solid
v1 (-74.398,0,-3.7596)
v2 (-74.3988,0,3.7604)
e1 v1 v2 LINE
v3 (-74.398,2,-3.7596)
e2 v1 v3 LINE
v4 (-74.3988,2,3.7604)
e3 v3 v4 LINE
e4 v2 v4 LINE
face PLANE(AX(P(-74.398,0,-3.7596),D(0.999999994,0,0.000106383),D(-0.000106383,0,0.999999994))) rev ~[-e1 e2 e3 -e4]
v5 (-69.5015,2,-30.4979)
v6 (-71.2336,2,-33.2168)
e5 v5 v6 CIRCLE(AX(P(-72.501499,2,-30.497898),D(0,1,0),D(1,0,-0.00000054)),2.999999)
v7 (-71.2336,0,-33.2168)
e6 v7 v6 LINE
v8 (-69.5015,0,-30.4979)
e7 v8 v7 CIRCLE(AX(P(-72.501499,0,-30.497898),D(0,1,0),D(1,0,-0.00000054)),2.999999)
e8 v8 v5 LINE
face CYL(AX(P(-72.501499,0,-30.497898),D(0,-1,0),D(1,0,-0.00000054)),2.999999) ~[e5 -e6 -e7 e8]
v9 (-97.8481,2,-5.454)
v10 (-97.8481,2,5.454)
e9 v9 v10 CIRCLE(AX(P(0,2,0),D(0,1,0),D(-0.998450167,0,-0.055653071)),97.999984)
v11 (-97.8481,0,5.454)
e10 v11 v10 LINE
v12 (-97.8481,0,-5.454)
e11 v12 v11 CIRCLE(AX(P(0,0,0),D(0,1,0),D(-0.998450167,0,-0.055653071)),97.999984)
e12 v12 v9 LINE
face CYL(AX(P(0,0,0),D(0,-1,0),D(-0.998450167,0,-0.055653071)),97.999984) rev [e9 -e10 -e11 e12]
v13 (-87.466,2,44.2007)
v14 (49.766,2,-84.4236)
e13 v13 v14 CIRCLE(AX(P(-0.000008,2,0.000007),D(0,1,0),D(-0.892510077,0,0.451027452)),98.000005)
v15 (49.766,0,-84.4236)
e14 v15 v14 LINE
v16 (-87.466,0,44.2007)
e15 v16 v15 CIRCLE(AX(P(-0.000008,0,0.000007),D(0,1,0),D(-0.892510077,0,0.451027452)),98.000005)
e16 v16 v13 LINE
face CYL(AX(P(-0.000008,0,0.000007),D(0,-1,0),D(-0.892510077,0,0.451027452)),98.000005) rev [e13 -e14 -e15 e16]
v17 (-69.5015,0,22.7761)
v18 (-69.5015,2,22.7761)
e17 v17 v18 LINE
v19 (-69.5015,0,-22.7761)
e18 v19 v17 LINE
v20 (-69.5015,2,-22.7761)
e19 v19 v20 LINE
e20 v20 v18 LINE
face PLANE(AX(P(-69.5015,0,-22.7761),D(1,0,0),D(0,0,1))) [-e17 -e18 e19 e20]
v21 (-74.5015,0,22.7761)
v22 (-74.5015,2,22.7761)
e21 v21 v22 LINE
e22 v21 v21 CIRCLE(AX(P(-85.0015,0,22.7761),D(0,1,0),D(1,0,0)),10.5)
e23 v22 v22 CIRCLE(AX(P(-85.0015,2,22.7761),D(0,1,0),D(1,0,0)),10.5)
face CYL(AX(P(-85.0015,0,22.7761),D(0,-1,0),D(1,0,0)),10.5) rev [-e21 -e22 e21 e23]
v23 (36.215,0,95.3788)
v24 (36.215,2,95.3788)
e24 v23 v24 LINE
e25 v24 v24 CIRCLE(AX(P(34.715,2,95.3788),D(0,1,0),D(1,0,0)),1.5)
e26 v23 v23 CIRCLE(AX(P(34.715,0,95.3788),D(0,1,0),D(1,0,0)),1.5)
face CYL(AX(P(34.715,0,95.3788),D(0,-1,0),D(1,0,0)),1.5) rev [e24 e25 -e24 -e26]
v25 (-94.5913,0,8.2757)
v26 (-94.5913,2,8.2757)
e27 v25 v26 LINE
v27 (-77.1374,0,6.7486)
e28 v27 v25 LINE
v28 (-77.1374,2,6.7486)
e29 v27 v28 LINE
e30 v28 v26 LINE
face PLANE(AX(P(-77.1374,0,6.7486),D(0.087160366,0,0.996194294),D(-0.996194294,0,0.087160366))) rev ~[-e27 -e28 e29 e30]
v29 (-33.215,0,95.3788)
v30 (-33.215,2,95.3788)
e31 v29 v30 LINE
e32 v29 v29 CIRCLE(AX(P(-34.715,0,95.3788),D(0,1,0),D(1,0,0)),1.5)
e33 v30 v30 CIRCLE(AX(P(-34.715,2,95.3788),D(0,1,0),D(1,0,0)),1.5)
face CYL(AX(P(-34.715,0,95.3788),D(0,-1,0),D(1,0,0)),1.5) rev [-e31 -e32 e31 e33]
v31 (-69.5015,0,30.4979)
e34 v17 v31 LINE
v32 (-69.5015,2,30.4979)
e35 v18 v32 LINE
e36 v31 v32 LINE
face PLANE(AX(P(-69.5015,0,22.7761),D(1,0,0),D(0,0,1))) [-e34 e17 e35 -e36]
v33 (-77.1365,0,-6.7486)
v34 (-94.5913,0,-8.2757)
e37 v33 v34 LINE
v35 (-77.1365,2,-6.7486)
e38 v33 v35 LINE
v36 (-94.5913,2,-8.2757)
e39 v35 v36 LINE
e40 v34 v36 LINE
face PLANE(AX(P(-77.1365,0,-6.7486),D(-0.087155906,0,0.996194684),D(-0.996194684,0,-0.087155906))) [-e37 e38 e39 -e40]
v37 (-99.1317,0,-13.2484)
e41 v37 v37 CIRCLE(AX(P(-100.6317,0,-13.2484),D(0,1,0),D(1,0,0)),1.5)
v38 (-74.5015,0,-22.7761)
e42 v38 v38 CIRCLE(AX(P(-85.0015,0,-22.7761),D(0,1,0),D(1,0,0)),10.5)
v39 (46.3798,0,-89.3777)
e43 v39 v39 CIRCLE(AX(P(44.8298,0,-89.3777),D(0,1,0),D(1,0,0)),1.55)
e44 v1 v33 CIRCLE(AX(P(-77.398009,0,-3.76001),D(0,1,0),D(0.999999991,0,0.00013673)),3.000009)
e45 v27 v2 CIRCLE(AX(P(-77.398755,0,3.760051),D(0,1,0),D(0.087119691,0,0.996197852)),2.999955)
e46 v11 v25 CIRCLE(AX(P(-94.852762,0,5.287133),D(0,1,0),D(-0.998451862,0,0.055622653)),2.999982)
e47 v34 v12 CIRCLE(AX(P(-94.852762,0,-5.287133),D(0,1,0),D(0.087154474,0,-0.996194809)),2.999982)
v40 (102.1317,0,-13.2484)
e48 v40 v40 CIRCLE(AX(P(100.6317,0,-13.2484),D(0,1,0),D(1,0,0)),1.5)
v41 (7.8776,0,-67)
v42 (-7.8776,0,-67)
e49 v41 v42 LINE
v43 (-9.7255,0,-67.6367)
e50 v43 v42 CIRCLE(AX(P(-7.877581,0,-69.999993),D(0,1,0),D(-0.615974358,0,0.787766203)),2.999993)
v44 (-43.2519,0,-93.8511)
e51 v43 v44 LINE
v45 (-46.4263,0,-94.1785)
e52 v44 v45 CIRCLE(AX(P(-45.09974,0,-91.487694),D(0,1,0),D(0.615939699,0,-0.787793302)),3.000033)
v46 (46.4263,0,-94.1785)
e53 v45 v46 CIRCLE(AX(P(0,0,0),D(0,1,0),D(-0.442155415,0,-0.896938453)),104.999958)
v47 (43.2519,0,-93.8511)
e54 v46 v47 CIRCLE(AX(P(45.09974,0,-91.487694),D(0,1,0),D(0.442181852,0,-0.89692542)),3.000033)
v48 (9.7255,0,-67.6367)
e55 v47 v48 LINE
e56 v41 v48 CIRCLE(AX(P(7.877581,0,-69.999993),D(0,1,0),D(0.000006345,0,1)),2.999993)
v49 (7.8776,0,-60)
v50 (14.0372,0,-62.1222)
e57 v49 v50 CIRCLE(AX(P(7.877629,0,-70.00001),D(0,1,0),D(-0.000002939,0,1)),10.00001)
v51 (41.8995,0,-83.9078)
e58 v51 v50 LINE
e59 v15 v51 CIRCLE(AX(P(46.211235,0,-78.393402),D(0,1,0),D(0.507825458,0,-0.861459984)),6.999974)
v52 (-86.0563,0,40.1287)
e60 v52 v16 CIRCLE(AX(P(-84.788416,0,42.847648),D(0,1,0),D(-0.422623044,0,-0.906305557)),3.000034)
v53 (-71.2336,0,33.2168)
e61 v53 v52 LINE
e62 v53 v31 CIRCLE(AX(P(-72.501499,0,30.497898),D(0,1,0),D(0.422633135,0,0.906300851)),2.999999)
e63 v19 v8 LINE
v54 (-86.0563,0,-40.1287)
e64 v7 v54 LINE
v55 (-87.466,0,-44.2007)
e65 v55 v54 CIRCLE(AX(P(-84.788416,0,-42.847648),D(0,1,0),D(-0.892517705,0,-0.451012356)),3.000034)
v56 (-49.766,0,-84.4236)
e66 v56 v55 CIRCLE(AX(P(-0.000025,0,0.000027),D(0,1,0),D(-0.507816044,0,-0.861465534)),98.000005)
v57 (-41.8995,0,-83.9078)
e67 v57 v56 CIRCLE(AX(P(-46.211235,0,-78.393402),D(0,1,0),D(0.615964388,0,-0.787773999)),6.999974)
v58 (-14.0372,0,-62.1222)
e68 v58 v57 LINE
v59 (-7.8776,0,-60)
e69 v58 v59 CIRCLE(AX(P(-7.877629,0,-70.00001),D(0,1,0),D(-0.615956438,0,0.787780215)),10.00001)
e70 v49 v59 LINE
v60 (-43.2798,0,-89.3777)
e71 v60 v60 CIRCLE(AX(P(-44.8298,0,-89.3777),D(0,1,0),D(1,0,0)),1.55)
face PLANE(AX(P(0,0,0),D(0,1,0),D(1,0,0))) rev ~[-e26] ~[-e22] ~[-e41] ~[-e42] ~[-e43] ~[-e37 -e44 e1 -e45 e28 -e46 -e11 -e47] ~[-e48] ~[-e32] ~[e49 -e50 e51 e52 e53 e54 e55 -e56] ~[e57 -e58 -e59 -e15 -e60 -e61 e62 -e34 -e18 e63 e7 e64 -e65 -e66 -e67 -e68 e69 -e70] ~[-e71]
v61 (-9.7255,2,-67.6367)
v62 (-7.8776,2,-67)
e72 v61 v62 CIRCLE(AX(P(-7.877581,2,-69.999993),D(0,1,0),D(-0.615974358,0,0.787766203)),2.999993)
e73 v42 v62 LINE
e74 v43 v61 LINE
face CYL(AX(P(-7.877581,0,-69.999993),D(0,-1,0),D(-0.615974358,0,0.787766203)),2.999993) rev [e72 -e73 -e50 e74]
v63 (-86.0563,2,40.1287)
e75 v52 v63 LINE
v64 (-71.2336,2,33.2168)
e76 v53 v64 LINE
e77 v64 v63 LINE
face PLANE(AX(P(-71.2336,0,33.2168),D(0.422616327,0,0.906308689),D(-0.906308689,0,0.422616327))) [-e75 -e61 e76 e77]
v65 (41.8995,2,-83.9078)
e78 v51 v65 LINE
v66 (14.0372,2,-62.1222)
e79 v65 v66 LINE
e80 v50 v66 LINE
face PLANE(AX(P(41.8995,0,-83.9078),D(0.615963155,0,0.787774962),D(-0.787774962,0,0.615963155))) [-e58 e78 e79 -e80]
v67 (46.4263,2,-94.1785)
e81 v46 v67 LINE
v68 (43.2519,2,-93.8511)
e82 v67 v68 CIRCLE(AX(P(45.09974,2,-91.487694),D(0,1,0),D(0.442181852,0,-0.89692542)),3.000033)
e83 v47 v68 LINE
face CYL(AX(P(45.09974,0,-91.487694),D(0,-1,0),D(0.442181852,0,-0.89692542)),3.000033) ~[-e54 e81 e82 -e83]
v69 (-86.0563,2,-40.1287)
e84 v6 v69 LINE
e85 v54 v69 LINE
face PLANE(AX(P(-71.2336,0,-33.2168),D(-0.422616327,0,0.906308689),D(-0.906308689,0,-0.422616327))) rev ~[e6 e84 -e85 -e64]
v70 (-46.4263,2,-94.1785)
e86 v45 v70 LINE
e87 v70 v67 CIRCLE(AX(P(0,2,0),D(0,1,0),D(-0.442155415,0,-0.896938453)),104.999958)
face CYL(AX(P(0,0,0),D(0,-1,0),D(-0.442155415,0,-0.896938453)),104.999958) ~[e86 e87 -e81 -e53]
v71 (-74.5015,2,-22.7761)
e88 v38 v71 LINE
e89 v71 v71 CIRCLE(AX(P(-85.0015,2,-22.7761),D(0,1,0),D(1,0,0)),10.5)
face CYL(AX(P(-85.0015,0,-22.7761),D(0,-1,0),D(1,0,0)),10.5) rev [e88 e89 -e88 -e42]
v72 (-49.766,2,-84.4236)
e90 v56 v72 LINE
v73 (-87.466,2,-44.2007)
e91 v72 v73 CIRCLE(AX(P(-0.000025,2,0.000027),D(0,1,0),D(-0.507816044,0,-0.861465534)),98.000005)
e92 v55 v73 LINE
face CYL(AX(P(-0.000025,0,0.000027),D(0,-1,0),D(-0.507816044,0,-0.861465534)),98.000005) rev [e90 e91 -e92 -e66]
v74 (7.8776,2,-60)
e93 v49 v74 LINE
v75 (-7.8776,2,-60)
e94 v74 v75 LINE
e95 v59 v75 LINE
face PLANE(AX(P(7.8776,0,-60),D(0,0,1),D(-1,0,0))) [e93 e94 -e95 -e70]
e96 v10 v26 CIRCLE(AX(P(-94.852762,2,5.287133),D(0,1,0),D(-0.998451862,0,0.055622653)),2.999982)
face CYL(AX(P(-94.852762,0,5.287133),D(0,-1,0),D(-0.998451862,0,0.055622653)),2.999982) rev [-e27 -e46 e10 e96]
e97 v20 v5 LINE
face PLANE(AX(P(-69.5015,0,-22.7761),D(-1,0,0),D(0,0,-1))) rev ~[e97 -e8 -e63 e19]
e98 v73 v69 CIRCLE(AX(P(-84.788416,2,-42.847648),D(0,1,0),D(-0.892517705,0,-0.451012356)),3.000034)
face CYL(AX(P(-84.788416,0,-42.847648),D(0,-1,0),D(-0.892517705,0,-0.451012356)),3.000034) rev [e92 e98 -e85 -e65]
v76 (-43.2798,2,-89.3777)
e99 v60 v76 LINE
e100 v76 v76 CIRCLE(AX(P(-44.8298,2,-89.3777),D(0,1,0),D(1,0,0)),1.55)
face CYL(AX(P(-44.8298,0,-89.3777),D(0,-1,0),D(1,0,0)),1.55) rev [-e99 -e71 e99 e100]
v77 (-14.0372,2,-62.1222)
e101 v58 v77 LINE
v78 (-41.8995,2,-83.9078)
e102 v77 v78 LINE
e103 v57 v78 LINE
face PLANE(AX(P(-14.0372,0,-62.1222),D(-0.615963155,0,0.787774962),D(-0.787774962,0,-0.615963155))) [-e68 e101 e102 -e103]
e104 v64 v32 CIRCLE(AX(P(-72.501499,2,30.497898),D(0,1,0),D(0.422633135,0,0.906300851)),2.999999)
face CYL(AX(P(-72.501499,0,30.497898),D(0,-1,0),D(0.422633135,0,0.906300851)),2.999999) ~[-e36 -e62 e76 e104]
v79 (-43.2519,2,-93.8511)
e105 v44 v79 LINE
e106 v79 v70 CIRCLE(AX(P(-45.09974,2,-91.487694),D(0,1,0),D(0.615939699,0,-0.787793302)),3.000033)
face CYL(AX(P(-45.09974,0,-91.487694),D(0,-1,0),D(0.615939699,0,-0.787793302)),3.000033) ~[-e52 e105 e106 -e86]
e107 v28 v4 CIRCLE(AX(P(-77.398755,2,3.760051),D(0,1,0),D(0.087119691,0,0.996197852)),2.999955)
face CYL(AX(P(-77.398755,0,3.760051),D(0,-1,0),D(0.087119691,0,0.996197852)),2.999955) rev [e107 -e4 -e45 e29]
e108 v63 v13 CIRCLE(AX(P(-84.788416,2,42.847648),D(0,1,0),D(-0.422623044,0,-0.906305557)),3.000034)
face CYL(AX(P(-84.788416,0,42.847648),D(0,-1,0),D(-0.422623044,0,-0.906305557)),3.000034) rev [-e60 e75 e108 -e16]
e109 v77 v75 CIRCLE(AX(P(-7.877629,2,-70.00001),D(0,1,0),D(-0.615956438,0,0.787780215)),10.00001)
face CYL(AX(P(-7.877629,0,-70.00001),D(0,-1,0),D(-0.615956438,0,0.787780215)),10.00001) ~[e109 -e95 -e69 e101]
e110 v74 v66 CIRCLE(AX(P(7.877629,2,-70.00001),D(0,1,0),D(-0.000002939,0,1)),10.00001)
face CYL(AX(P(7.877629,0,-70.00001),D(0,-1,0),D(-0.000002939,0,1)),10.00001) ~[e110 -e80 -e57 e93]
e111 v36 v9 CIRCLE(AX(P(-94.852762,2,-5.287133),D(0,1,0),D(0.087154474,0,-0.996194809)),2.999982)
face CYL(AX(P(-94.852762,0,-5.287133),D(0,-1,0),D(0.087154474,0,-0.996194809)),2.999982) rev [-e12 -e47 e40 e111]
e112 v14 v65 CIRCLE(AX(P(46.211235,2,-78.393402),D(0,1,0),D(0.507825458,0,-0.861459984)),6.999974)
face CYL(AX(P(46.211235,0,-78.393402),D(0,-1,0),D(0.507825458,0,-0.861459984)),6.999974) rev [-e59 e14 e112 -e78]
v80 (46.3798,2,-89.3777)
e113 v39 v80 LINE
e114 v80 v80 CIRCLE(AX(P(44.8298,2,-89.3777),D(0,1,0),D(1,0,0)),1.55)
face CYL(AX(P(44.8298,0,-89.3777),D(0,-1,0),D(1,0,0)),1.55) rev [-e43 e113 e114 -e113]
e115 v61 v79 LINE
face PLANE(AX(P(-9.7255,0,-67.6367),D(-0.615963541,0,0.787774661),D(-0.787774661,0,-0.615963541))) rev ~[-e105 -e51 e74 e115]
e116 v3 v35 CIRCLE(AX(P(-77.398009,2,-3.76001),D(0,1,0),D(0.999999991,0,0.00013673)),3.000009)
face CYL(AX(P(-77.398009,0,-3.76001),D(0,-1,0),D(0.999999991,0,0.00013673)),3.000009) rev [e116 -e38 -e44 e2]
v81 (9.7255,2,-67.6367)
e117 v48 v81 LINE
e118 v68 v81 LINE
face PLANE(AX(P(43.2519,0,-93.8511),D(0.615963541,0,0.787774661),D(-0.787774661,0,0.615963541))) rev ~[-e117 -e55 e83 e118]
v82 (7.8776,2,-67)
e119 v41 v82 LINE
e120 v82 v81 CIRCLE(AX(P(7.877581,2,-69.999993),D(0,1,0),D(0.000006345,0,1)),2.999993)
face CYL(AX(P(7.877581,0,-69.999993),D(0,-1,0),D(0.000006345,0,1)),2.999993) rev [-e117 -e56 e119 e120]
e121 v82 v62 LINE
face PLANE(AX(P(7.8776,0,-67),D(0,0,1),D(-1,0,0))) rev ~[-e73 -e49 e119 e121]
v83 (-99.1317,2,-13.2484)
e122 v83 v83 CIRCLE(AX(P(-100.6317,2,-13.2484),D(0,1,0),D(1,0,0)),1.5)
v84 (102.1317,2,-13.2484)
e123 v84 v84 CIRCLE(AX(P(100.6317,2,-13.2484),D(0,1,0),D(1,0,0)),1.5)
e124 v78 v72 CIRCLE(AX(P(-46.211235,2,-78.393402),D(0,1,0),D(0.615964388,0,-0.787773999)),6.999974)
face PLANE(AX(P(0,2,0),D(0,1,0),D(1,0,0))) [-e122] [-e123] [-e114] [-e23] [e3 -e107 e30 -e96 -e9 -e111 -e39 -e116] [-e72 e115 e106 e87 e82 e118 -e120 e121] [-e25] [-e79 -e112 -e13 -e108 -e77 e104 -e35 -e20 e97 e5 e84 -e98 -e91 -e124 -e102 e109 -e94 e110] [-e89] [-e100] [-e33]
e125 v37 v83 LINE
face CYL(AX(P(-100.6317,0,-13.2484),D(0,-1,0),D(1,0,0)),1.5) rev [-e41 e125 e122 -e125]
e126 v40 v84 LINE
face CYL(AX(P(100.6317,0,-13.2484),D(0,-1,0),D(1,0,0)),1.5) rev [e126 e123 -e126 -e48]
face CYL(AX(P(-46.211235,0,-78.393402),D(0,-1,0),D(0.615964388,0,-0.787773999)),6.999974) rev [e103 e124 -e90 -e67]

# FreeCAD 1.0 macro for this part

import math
import FreeCAD as App
import Part
import Sketcher

V = App.Vector
Q = App.Units.Quantity

doc = App.newDocument("Part")
body = doc.addObject("PartDesign::Body", "Body")

sketch1 = body.newObject("Sketcher::SketchObject", "Sketch")
sketch1.AttachmentSupport = (doc.getObject("XZ_Plane"), [""])
sketch1.MapMode = "FlatFace"
sketch1.addGeometry([
    Part.ArcOfCircle(Part.Circle(V(-45.1, -91.5, 0), V(0, 0, 1), 3), math.radians(-116), math.radians(-52)),
    Part.ArcOfCircle(Part.Circle(V(0, 0, 0), V(0, 0, 1), 105), math.radians(-64), math.radians(244)),
    Part.ArcOfCircle(Part.Circle(V(45.1, -91.5, 0), V(0, 0, 1), 3), math.radians(-128), math.radians(-64)),
    Part.LineSegment(V(43.3, -93.9, 0), V(9.7, -67.6, 0)),
    Part.ArcOfCircle(Part.Circle(V(7.9, -70, 0), V(0, 0, 1), 3), math.radians(52), math.radians(90)),
    Part.LineSegment(V(7.9, -67, 0), V(-7.9, -67, 0)),
    Part.ArcOfCircle(Part.Circle(V(-7.9, -70, 0), V(0, 0, 1), 3), math.radians(90), math.radians(128)),
    Part.LineSegment(V(-9.7, -67.6, 0), V(-43.3, -93.9, 0)),
    Part.Circle(V(-34.7, 95.4, 0), V(0, 0, 1), 1.5),
    Part.Circle(V(-85, 22.8, 0), V(0, 0, 1), 10.5),
    Part.Circle(V(34.7, 95.4, 0), V(0, 0, 1), 1.5),
    Part.ArcOfCircle(Part.Circle(V(-72.5, -30.5, 0), V(0, 0, 1), 3), math.radians(-65), math.radians(0)),
    Part.LineSegment(V(-71.2, -33.2, 0), V(-86.1, -40.1, 0)),
    Part.ArcOfCircle(Part.Circle(V(-84.8, -42.8, 0), V(0, 0, 1), 3), math.radians(115), math.radians(207)),
    Part.ArcOfCircle(Part.Circle(V(0, 0, 0), V(0, 0, 1), 98), math.radians(-153), math.radians(-121)),
    Part.ArcOfCircle(Part.Circle(V(-46.2, -78.4, 0), V(0, 0, 1), 7), math.radians(-121), math.radians(-52)),
    Part.LineSegment(V(-41.9, -83.9, 0), V(-14, -62.1, 0)),
    Part.ArcOfCircle(Part.Circle(V(-7.9, -70, 0), V(0, 0, 1), 10), math.radians(90), math.radians(128)),
    Part.LineSegment(V(-7.9, -60, 0), V(7.9, -60, 0)),
    Part.ArcOfCircle(Part.Circle(V(7.9, -70, 0), V(0, 0, 1), 10), math.radians(52), math.radians(90)),
    Part.LineSegment(V(14, -62.1, 0), V(41.9, -83.9, 0)),
    Part.ArcOfCircle(Part.Circle(V(46.2, -78.4, 0), V(0, 0, 1), 7), math.radians(-128), math.radians(-59)),
    Part.ArcOfCircle(Part.Circle(V(0, 0, 0), V(0, 0, 1), 98), math.radians(-59), math.radians(153)),
    Part.ArcOfCircle(Part.Circle(V(-84.8, 42.8, 0), V(0, 0, 1), 3), math.radians(153), math.radians(245)),
    Part.LineSegment(V(-86.1, 40.1, 0), V(-71.2, 33.2, 0)),
    Part.ArcOfCircle(Part.Circle(V(-72.5, 30.5, 0), V(0, 0, 1), 3), math.radians(0), math.radians(65)),
    Part.LineSegment(V(-69.5, 30.5, 0), V(-69.5, -30.5, 0)),
    Part.LineSegment(V(-94.6, -8.3, 0), V(-77.1, -6.7, 0)),
    Part.ArcOfCircle(Part.Circle(V(-77.4, -3.8, 0), V(0, 0, 1), 3), math.radians(-85), math.radians(0)),
    Part.LineSegment(V(-74.4, -3.8, 0), V(-74.4, 3.8, 0)),
    Part.ArcOfCircle(Part.Circle(V(-77.4, 3.8, 0), V(0, 0, 1), 3), math.radians(0), math.radians(85)),
    Part.LineSegment(V(-77.1, 6.7, 0), V(-94.6, 8.3, 0)),
    Part.ArcOfCircle(Part.Circle(V(-94.9, 5.3, 0), V(0, 0, 1), 3), math.radians(85), math.radians(177)),
    Part.ArcOfCircle(Part.Circle(V(0, 0, 0), V(0, 0, 1), 98), math.radians(176.81), math.radians(183.19)),
    Part.ArcOfCircle(Part.Circle(V(-94.9, -5.3, 0), V(0, 0, 1), 3), math.radians(-177), math.radians(-85)),
    Part.Circle(V(-100.6, -13.2, 0), V(0, 0, 1), 1.5),
    Part.Circle(V(-85, -22.8, 0), V(0, 0, 1), 10.5),
    Part.Circle(V(-44.8, -89.4, 0), V(0, 0, 1), 1.6),
    Part.Circle(V(100.6, -13.2, 0), V(0, 0, 1), 1.5),
    Part.Circle(V(44.8, -89.4, 0), V(0, 0, 1), 1.6),
], False)
sketch1.addConstraint([
    Sketcher.Constraint("Tangent", 0, 1, 1, 2),
    Sketcher.Constraint("Tangent", 1, 1, 2, 2),
    Sketcher.Constraint("Tangent", 2, 1, 3, 1),
    Sketcher.Constraint("Tangent", 3, 2, 4, 1),
    Sketcher.Constraint("Tangent", 4, 2, 5, 1),
    Sketcher.Constraint("Tangent", 5, 2, 6, 1),
    Sketcher.Constraint("Tangent", 6, 2, 7, 1),
    Sketcher.Constraint("Tangent", 7, 2, 0, 2),
    Sketcher.Constraint("Tangent", 11, 1, 12, 1),
    Sketcher.Constraint("Tangent", 12, 2, 13, 1),
    Sketcher.Constraint("Tangent", 13, 2, 14, 1),
    Sketcher.Constraint("Tangent", 14, 2, 15, 1),
    Sketcher.Constraint("Tangent", 15, 2, 16, 1),
    Sketcher.Constraint("Tangent", 16, 2, 17, 2),
    Sketcher.Constraint("Tangent", 17, 1, 18, 1),
    Sketcher.Constraint("Tangent", 18, 2, 19, 2),
    Sketcher.Constraint("Tangent", 19, 1, 20, 1),
    Sketcher.Constraint("Tangent", 20, 2, 21, 1),
    Sketcher.Constraint("Tangent", 21, 2, 22, 1),
    Sketcher.Constraint("Tangent", 22, 2, 23, 1),
    Sketcher.Constraint("Tangent", 23, 2, 24, 1),
    Sketcher.Constraint("Tangent", 24, 2, 25, 2),
    Sketcher.Constraint("Tangent", 25, 1, 26, 1),
    Sketcher.Constraint("Tangent", 26, 2, 11, 2),
    Sketcher.Constraint("Tangent", 27, 2, 28, 1),
    Sketcher.Constraint("Tangent", 28, 2, 29, 1),
    Sketcher.Constraint("Tangent", 29, 2, 30, 1),
    Sketcher.Constraint("Tangent", 30, 2, 31, 1),
    Sketcher.Constraint("Tangent", 31, 2, 32, 1),
    Sketcher.Constraint("Tangent", 32, 2, 33, 1),
    Sketcher.Constraint("Tangent", 33, 2, 34, 1),
    Sketcher.Constraint("Tangent", 34, 2, 27, 1),
    Sketcher.Constraint("Horizontal", 5),
    Sketcher.Constraint("Horizontal", 18),
    Sketcher.Constraint("Vertical", 26),
    Sketcher.Constraint("Coincident", 1, 3, -1, 1),
    Sketcher.Constraint("Coincident", 14, 3, -1, 1),
    Sketcher.Constraint("Coincident", 22, 3, -1, 1),
    Sketcher.Constraint("Coincident", 33, 3, -1, 1),
    Sketcher.Constraint("Coincident", 17, 3, 6, 3),
    Sketcher.Constraint("Coincident", 19, 3, 4, 3),
    Sketcher.Constraint("Equal", 0, 2),
    Sketcher.Constraint("Equal", 2, 4),
    Sketcher.Constraint("Equal", 4, 6),
    Sketcher.Constraint("Equal", 8, 10),
    Sketcher.Constraint("Equal", 6, 11),
    Sketcher.Constraint("Equal", 11, 13),
    Sketcher.Constraint("Equal", 15, 21),
    Sketcher.Constraint("Equal", 14, 22),
    Sketcher.Constraint("Equal", 13, 23),
    Sketcher.Constraint("Equal", 23, 25),
    Sketcher.Constraint("Equal", 25, 28),
    Sketcher.Constraint("Equal", 28, 30),
    Sketcher.Constraint("Equal", 30, 32),
    Sketcher.Constraint("Equal", 22, 33),
    Sketcher.Constraint("Equal", 32, 34),
    Sketcher.Constraint("Equal", 10, 35),
    Sketcher.Constraint("Equal", 9, 36),
    Sketcher.Constraint("Equal", 35, 38),
    Sketcher.Constraint("Equal", 37, 39),
    Sketcher.Constraint("Symmetric", 8, 3, 10, 3, -2),
    Sketcher.Constraint("Symmetric", 35, 3, 38, 3, -2),
    Sketcher.Constraint("Symmetric", 37, 3, 39, 3, -2),
    Sketcher.Constraint("Symmetric", 3, 2, 6, 2, -2),
    Sketcher.Constraint("Symmetric", 9, 3, 36, 3, -1),
    Sketcher.Constraint("Symmetric", 12, 2, 23, 2, -1),
    Sketcher.Constraint("Symmetric", 31, 2, 34, 2, -1),
    Sketcher.Constraint("Parallel", 7, 16),
    Sketcher.Constraint("Parallel", 3, 20),
    Sketcher.Constraint("Diameter", 8, 3.0),
    Sketcher.Constraint("Radius", 0, 3.0),
    Sketcher.Constraint("Diameter", 9, 21.0),
    Sketcher.Constraint("Radius", 1, 105.0),
    Sketcher.Constraint("Radius", 14, 98.0),
    Sketcher.Constraint("Radius", 15, 7.0),
    Sketcher.Constraint("Radius", 17, 10.0),
    Sketcher.Constraint("Diameter", 37, 3.1),
    Sketcher.Constraint("Angle", 12, Q("-155.0001 deg")),
    Sketcher.Constraint("Angle", 27, Q("5 deg")),
    Sketcher.Constraint("DistanceY", 4, 3, -1, 1, 70.0),
    Sketcher.Constraint("DistanceX", 9, 3, 11, 3, 12.5),
    Sketcher.Constraint("Distance", 29, 7.52),
    Sketcher.Constraint("DistanceY", 28, 3, -1, 1, 3.76),
    Sketcher.Constraint("DistanceX", 8, 3, 10, 3, 69.43),
    Sketcher.Constraint("DistanceY", 0, 3, 13, 3, 48.64),
    Sketcher.Constraint("DistanceX", 0, 3, 37, 3, 0.27),
    Sketcher.Constraint("DistanceY", 0, 3, 37, 3, 2.11),
    Sketcher.Constraint("DistanceY", 37, 3, 15, 2, 5.47),
    Sketcher.Constraint("Distance", 12, 16.355),
    Sketcher.Constraint("DistanceX", 5, 2, 5, 1, 15.7552),
    Sketcher.Constraint("DistanceY", -1, 1, 9, 3, 22.776),
    Sketcher.Constraint("DistanceX", 28, 3, -1, 1, 77.398),
    Sketcher.Constraint("DistanceY", 25, 3, 8, 3, 64.881),
    Sketcher.Constraint("DistanceX", 35, 3, 34, 3, 5.779),
    Sketcher.Constraint("DistanceY", 21, 3, 38, 3, 65.145),
])
pad1 = body.newObject("PartDesign::Pad", "Pad")
pad1.Profile = sketch1
pad1.Length = 2
pad1.Reversed = True

doc.recompute()
